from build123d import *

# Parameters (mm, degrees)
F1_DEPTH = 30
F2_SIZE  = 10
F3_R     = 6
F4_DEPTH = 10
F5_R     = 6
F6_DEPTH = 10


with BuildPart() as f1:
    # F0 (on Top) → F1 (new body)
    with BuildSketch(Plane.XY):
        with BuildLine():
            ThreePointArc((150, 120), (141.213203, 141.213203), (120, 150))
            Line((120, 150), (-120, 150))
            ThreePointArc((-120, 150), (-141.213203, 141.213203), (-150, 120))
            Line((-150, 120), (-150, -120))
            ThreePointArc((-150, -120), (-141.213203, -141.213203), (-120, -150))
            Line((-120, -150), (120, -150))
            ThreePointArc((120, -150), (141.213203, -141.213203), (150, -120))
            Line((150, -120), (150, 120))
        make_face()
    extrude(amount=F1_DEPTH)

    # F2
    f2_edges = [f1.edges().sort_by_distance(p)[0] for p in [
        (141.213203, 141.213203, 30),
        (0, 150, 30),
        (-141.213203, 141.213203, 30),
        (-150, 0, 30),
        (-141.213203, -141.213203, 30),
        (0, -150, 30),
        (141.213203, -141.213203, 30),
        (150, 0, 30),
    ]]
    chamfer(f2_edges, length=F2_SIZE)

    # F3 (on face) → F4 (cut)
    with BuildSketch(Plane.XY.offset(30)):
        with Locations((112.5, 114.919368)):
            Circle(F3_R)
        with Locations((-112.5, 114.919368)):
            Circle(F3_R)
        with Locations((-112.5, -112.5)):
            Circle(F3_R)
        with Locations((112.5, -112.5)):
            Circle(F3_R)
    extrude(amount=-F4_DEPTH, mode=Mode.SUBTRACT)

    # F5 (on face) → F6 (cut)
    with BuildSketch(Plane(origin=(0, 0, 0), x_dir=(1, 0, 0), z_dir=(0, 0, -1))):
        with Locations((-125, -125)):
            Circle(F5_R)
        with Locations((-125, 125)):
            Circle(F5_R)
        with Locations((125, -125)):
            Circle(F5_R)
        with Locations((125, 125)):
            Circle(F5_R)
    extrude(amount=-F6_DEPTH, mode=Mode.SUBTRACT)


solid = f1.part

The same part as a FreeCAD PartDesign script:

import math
import FreeCAD as App
import Part
import Sketcher


def edges_at(feature, points):
    """Names of the edges that pass closest to the given points."""
    edges = feature.Shape.Edges
    near = lambda p: min(range(len(edges)), key=lambda i: edges[i].distToShape(Part.Vertex(*p))[0])
    return sorted({f"Edge{near(p) + 1}" for p in points})

doc = App.newDocument("Part")
body = doc.addObject("PartDesign::Body", "Body")

sketch1 = body.newObject("Sketcher::SketchObject", "Sketch")
sketch1.AttachmentSupport = (doc.getObject("XY_Plane"), [""])
sketch1.MapMode = "FlatFace"
sketch1.addGeometry([
    Part.ArcOfCircle(Part.Circle(App.Vector(120, 120, 0), App.Vector(0, 0, 1), 30), math.radians(0), math.radians(90)),
    Part.LineSegment(App.Vector(120, 150, 0), App.Vector(-120, 150, 0)),
    Part.ArcOfCircle(Part.Circle(App.Vector(-120, 120, 0), App.Vector(0, 0, 1), 30), math.radians(90), math.radians(180)),
    Part.LineSegment(App.Vector(-150, 120, 0), App.Vector(-150, -120, 0)),
    Part.ArcOfCircle(Part.Circle(App.Vector(-120, -120, 0), App.Vector(0, 0, 1), 30), math.radians(-180), math.radians(-90)),
    Part.LineSegment(App.Vector(-120, -150, 0), App.Vector(120, -150, 0)),
    Part.ArcOfCircle(Part.Circle(App.Vector(120, -120, 0), App.Vector(0, 0, 1), 30), math.radians(-90), math.radians(0)),
    Part.LineSegment(App.Vector(150, -120, 0), App.Vector(150, 120, 0)),
], False)
sketch1.addConstraint([
    Sketcher.Constraint("Tangent", 0, 2, 1, 1),
    Sketcher.Constraint("Tangent", 1, 2, 2, 1),
    Sketcher.Constraint("Tangent", 2, 2, 3, 1),
    Sketcher.Constraint("Tangent", 3, 2, 4, 1),
    Sketcher.Constraint("Tangent", 4, 2, 5, 1),
    Sketcher.Constraint("Tangent", 5, 2, 6, 1),
    Sketcher.Constraint("Tangent", 6, 2, 7, 1),
    Sketcher.Constraint("Tangent", 7, 2, 0, 1),
    Sketcher.Constraint("Horizontal", 1),
    Sketcher.Constraint("Vertical", 3),
    Sketcher.Constraint("Horizontal", 5),
    Sketcher.Constraint("Vertical", 7),
    Sketcher.Constraint("Equal", 0, 2),
    Sketcher.Constraint("Equal", 2, 4),
    Sketcher.Constraint("Equal", 4, 6),
    Sketcher.Constraint("Symmetric", 0, 3, 4, 3, -1, 1),
    Sketcher.Constraint("Equal", 5, 3),
    Sketcher.Constraint("Radius", 0, 30.000001),
    Sketcher.Constraint("DistanceX", 1, 2, 1, 1, 240.0),
])
pad1 = body.newObject("PartDesign::Pad", "Pad")
pad1.Profile = sketch1
pad1.Length = 30
doc.recompute()

chamfer = body.newObject("PartDesign::Chamfer", "Chamfer")
chamfer.Base = (pad1, edges_at(pad1, [
    (141.213, 141.213, 30),
    (0, 150, 30),
    (-141.213, 141.213, 30),
    (-150, 0, 30),
    (-141.213, -141.213, 30),
    (0, -150, 30),
    (141.213, -141.213, 30),
    (150, 0, 30),
]))
chamfer.Size = 10

sketch2 = body.newObject("Sketcher::SketchObject", "Sketch001")
sketch2.AttachmentSupport = (doc.getObject("XY_Plane"), [""])
sketch2.MapMode = "FlatFace"
sketch2.AttachmentOffset = App.Placement(App.Vector(0, 0, 30), App.Rotation())
sketch2.addGeometry([
    Part.Circle(App.Vector(112, 115, 0), App.Vector(0, 0, 1), 6),
    Part.Circle(App.Vector(-112, 115, 0), App.Vector(0, 0, 1), 6),
    Part.Circle(App.Vector(-112, -112, 0), App.Vector(0, 0, 1), 6),
    Part.Circle(App.Vector(112, -112, 0), App.Vector(0, 0, 1), 6),
], False)
sketch2.addConstraint([
    Sketcher.Constraint("Equal", 0, 1),
    Sketcher.Constraint("Equal", 1, 2),
    Sketcher.Constraint("Equal", 2, 3),
    Sketcher.Constraint("Symmetric", 0, 3, 1, 3, -2),
    Sketcher.Constraint("Symmetric", 2, 3, 3, 3, -2),
    Sketcher.Constraint("Vertical", 1, 3, 2, 3),
    Sketcher.Constraint("Diameter", 0, 12.0),
    Sketcher.Constraint("DistanceX", 1, 3, 0, 3, 225.0),
    Sketcher.Constraint("DistanceY", 2, 3, -1, 1, 112.5),
    Sketcher.Constraint("DistanceY", -1, 1, 0, 3, 114.919368),
])
pocket1 = body.newObject("PartDesign::Pocket", "Pocket")
pocket1.Profile = sketch2
pocket1.Length = 10

sketch3 = body.newObject("Sketcher::SketchObject", "Sketch002")
sketch3.AttachmentSupport = (doc.getObject("XY_Plane"), [""])
sketch3.MapMode = "FlatFace"
sketch3.addGeometry([
    Part.Circle(App.Vector(-125, 125, 0), App.Vector(0, 0, 1), 6),
    Part.Circle(App.Vector(-125, -125, 0), App.Vector(0, 0, 1), 6),
    Part.Circle(App.Vector(125, 125, 0), App.Vector(0, 0, 1), 6),
    Part.Circle(App.Vector(125, -125, 0), App.Vector(0, 0, 1), 6),
], False)
sketch3.addConstraint([
    Sketcher.Constraint("Equal", 0, 1),
    Sketcher.Constraint("Equal", 1, 2),
    Sketcher.Constraint("Equal", 2, 3),
    Sketcher.Constraint("Symmetric", 1, 3, 2, 3, -1, 1),
    Sketcher.Constraint("Symmetric", 0, 3, 3, 3, -1, 1),
    Sketcher.Constraint("Symmetric", 0, 3, 2, 3, -2),
    Sketcher.Constraint("Diameter", 0, 12.0),
    Sketcher.Constraint("DistanceX", 0, 3, -1, 1, 125.0),
    Sketcher.Constraint("DistanceY", -1, 1, 0, 3, 125.0),
])
pocket2 = body.newObject("PartDesign::Pocket", "Pocket001")
pocket2.Profile = sketch3
pocket2.Length = 10
pocket2.Reversed = True

doc.recompute()
